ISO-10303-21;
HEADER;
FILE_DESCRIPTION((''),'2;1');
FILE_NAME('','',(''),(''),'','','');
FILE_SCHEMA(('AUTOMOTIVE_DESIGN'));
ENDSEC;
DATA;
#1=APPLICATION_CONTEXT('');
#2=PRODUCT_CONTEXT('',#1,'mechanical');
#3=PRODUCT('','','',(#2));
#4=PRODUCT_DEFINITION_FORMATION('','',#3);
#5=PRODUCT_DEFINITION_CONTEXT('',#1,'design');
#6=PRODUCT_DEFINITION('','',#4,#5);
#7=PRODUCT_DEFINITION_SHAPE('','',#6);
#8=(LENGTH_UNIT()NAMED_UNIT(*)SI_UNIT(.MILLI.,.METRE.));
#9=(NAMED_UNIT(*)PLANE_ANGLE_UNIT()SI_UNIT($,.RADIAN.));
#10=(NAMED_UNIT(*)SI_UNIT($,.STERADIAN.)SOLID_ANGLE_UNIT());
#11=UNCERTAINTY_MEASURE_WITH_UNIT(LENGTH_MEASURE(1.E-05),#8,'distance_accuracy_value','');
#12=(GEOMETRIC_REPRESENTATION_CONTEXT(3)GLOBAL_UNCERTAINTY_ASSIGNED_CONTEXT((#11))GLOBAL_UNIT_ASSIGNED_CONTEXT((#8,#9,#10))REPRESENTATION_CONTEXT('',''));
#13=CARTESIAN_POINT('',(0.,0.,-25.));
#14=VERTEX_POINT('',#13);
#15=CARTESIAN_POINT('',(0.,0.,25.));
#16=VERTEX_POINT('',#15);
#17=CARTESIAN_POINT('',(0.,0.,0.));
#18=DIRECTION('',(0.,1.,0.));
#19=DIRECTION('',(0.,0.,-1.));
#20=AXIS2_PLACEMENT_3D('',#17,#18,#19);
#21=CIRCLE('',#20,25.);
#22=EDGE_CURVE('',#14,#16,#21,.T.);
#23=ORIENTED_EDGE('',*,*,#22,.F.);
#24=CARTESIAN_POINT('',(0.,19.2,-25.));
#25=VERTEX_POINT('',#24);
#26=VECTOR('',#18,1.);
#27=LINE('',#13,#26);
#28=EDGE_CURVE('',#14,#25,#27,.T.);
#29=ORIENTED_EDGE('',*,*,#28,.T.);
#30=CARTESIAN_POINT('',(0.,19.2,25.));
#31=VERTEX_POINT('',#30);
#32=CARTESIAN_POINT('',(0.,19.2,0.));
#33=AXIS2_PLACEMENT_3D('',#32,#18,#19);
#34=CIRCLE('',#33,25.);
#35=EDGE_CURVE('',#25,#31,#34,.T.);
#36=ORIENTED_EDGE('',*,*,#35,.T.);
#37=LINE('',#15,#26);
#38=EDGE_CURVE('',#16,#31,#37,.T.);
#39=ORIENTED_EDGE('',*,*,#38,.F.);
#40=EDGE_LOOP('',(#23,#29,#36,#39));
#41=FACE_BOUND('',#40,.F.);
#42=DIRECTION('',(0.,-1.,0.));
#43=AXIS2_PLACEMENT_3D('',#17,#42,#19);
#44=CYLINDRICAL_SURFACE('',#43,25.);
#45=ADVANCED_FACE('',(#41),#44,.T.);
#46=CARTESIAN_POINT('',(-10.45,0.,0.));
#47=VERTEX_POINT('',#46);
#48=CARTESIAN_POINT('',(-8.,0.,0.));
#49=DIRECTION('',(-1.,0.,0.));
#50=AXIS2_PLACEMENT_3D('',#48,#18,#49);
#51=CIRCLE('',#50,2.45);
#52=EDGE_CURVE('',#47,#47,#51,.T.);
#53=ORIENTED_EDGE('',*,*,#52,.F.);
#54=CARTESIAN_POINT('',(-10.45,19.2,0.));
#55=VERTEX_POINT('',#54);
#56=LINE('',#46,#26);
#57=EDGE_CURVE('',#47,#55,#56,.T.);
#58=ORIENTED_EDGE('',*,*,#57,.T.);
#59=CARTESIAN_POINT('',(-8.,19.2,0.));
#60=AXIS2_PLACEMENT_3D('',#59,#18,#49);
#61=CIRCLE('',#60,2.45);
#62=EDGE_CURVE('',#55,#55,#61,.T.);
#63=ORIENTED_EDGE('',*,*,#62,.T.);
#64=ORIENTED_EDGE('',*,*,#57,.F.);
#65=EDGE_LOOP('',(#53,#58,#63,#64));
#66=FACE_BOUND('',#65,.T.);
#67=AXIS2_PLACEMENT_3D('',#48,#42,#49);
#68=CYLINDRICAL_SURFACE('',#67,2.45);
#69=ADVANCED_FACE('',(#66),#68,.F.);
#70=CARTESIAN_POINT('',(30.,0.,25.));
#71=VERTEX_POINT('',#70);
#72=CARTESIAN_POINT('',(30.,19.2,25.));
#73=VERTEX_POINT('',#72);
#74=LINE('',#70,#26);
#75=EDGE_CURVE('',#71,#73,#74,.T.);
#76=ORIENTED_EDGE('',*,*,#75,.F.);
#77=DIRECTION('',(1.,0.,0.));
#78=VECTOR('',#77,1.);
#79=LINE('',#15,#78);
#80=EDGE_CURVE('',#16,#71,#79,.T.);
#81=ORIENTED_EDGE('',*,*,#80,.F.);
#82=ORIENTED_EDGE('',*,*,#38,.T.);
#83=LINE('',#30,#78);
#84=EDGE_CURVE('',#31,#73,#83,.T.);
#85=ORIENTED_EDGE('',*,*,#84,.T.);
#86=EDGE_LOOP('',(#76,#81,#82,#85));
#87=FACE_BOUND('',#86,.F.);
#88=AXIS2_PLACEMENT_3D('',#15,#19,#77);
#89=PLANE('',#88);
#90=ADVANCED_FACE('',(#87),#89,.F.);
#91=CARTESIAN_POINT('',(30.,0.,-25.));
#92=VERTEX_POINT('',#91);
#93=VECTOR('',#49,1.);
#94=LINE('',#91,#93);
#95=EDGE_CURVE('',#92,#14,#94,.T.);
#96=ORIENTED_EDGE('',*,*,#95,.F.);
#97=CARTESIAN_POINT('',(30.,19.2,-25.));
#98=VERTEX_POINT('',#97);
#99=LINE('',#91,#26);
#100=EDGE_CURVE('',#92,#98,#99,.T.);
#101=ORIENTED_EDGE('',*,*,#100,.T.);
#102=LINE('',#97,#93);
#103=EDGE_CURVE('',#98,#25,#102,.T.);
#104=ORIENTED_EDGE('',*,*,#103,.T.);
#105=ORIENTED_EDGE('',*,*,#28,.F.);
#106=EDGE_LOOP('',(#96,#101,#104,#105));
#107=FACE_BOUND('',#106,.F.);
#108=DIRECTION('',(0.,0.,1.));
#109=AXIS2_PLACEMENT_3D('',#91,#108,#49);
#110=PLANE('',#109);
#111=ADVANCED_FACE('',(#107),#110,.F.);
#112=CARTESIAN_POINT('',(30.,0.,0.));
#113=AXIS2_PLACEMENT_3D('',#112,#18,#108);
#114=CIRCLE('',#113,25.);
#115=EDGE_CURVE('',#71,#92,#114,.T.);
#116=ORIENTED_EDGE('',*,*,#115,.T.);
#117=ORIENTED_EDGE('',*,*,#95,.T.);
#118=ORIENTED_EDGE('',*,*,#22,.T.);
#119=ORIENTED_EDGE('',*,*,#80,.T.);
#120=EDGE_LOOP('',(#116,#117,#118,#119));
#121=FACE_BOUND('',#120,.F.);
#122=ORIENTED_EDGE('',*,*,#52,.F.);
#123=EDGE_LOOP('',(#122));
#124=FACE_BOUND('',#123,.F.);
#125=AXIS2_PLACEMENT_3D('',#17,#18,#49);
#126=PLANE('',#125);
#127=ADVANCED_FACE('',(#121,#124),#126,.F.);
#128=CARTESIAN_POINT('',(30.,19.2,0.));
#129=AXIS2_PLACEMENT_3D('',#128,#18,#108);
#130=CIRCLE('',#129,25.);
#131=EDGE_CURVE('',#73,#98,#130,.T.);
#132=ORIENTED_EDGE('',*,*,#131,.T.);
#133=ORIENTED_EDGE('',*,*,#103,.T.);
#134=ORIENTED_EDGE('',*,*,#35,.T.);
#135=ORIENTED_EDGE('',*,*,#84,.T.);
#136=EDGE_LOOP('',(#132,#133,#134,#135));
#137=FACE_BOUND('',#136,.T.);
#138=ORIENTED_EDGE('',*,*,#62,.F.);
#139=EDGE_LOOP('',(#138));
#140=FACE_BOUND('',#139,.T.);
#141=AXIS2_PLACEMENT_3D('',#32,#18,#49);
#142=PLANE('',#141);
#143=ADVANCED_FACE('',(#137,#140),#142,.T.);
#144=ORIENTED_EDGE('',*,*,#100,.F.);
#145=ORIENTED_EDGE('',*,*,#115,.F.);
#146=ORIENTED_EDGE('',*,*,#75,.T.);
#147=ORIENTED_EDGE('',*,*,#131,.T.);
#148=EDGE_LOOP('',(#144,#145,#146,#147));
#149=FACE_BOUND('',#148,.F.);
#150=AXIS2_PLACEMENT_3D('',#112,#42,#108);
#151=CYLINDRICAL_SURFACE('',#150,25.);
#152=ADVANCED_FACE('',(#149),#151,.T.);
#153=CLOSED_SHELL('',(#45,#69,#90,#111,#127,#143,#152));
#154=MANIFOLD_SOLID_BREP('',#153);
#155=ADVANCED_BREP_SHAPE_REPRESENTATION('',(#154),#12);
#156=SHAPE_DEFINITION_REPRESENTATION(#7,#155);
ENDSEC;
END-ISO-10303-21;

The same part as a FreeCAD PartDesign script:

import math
import FreeCAD as App
import Part
import Sketcher

V = App.Vector

doc = App.newDocument("Part")
body = doc.addObject("PartDesign::Body", "Body")

# Sketch on XZ plane
sketch1 = body.newObject("Sketcher::SketchObject", "Sketch")
sketch1.AttachmentSupport = (doc.getObject("XZ_Plane"), [""])
sketch1.MapMode = "FlatFace"
sketch1.addGeometry(Part.ArcOfCircle(Part.Circle(V(0, 0, 0), V(0, 0, 1), 25), math.radians(90), math.radians(270)), False)
sketch1.addGeometry(Part.LineSegment(V(0, 25, 0), V(30, 25, 0)), False)
sketch1.addGeometry(Part.ArcOfCircle(Part.Circle(V(30, 0, 0), V(0, 0, 1), 25), math.radians(-90), math.radians(90)), False)
sketch1.addGeometry(Part.LineSegment(V(30, -25, 0), V(0, -25, 0)), False)
sketch1.addGeometry(Part.Circle(V(-8, 0, 0), V(0, 0, 1), 2.5), False)
sketch1.addConstraint(Sketcher.Constraint("Tangent", 0, 1, 1, 1))
sketch1.addConstraint(Sketcher.Constraint("Tangent", 1, 2, 2, 2))
sketch1.addConstraint(Sketcher.Constraint("Tangent", 2, 1, 3, 1))
sketch1.addConstraint(Sketcher.Constraint("Tangent", 3, 2, 0, 2))
sketch1.addConstraint(Sketcher.Constraint("Horizontal", 1))
sketch1.addConstraint(Sketcher.Constraint("Horizontal", 3))
sketch1.addConstraint(Sketcher.Constraint("Coincident", 0, 3, -1, 1))
sketch1.addConstraint(Sketcher.Constraint("PointOnObject", 4, 3, -1))
sketch1.addConstraint(Sketcher.Constraint("Radius", 0, 25.0))
sketch1.addConstraint(Sketcher.Constraint("Diameter", 4, 4.9))
sketch1.addConstraint(Sketcher.Constraint("DistanceX", 1, 1, 1, 2, 30.0))
sketch1.addConstraint(Sketcher.Constraint("DistanceX", 4, 3, -1, 1, 8.0))
pad1 = body.newObject("PartDesign::Pad", "Pad")
pad1.Profile = sketch1
pad1.Length = 19.2
pad1.Reversed = True

doc.recompute()
